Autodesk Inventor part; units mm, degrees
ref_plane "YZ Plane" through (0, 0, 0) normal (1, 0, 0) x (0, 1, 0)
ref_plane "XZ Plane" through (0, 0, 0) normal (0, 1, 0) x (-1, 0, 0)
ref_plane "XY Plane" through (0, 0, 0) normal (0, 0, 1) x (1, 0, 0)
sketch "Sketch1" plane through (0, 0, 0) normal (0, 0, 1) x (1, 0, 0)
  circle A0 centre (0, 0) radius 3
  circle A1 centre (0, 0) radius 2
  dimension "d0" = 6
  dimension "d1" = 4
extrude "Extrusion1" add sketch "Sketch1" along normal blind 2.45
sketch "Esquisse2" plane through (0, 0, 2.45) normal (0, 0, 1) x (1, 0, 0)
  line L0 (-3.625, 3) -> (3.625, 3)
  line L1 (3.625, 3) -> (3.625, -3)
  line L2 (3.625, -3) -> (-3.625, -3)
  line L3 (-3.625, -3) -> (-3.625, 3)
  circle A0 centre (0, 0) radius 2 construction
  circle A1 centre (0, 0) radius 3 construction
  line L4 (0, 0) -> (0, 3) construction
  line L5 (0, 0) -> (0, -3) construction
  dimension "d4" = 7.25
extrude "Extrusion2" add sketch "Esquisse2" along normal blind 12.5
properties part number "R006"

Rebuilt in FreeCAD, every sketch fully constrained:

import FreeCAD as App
import Part
import Sketcher
from FreeCAD import Vector


def add_polygon(sketch, points):
    """Adds a closed chain of lines whose ends are joined by coincident constraints."""
    first, n = sketch.GeometryCount, len(points)
    for a, b in zip(points, points[1:] + points[:1]):
        sketch.addGeometry(Part.LineSegment(App.Vector(*a, 0), App.Vector(*b, 0)), False)
    for i in range(n):
        sketch.addConstraint(Sketcher.Constraint("Coincident", first + i, 2, first + (i + 1) % n, 1))

doc = App.newDocument("Part")
body = doc.addObject("PartDesign::Body", "Body")

# Sketch on XY plane
sketch1 = body.newObject("Sketcher::SketchObject", "Sketch")
sketch1.AttachmentSupport = (doc.getObject("XY_Plane"), [""])
sketch1.MapMode = "FlatFace"
sketch1.addGeometry([
    Part.Circle(Vector(0, 0, 0), Vector(0, 0, 1), 3),
    Part.Circle(Vector(0, 0, 0), Vector(0, 0, 1), 2),
], False)
sketch1.addConstraint([
    Sketcher.Constraint("Coincident", 0, 3, -1, 1),
    Sketcher.Constraint("Coincident", 1, 3, -1, 1),
    Sketcher.Constraint("Diameter", 0, 6.0),
    Sketcher.Constraint("Diameter", 1, 4.0),
])
pad1 = body.newObject("PartDesign::Pad", "Pad")
pad1.Profile = sketch1
pad1.Length = 2.45

# Sketch on XY plane
sketch2 = body.newObject("Sketcher::SketchObject", "Sketch001")
sketch2.AttachmentSupport = (doc.getObject("XY_Plane"), [""])
sketch2.MapMode = "FlatFace"
sketch2.AttachmentOffset = App.Placement(Vector(0, 0, 2.45), App.Rotation())
add_polygon(sketch2, [(4, 3), (-4, 3), (-4, -3), (4, -3)])  # lines 0-3
sketch2.addConstraint([
    Sketcher.Constraint("Horizontal", 0),
    Sketcher.Constraint("Vertical", 1),
    Sketcher.Constraint("Horizontal", 2),
    Sketcher.Constraint("Vertical", 3),
    Sketcher.Constraint("Symmetric", 0, 2, 2, 2, -1, 1),
    Sketcher.Constraint("DistanceX", 0, 2, 0, 1, 7.25),
    Sketcher.Constraint("DistanceY", 1, 2, 1, 1, 6.0),
])
pad2 = body.newObject("PartDesign::Pad", "Pad001")
pad2.Profile = sketch2
pad2.Length = 12.5

doc.recompute()
